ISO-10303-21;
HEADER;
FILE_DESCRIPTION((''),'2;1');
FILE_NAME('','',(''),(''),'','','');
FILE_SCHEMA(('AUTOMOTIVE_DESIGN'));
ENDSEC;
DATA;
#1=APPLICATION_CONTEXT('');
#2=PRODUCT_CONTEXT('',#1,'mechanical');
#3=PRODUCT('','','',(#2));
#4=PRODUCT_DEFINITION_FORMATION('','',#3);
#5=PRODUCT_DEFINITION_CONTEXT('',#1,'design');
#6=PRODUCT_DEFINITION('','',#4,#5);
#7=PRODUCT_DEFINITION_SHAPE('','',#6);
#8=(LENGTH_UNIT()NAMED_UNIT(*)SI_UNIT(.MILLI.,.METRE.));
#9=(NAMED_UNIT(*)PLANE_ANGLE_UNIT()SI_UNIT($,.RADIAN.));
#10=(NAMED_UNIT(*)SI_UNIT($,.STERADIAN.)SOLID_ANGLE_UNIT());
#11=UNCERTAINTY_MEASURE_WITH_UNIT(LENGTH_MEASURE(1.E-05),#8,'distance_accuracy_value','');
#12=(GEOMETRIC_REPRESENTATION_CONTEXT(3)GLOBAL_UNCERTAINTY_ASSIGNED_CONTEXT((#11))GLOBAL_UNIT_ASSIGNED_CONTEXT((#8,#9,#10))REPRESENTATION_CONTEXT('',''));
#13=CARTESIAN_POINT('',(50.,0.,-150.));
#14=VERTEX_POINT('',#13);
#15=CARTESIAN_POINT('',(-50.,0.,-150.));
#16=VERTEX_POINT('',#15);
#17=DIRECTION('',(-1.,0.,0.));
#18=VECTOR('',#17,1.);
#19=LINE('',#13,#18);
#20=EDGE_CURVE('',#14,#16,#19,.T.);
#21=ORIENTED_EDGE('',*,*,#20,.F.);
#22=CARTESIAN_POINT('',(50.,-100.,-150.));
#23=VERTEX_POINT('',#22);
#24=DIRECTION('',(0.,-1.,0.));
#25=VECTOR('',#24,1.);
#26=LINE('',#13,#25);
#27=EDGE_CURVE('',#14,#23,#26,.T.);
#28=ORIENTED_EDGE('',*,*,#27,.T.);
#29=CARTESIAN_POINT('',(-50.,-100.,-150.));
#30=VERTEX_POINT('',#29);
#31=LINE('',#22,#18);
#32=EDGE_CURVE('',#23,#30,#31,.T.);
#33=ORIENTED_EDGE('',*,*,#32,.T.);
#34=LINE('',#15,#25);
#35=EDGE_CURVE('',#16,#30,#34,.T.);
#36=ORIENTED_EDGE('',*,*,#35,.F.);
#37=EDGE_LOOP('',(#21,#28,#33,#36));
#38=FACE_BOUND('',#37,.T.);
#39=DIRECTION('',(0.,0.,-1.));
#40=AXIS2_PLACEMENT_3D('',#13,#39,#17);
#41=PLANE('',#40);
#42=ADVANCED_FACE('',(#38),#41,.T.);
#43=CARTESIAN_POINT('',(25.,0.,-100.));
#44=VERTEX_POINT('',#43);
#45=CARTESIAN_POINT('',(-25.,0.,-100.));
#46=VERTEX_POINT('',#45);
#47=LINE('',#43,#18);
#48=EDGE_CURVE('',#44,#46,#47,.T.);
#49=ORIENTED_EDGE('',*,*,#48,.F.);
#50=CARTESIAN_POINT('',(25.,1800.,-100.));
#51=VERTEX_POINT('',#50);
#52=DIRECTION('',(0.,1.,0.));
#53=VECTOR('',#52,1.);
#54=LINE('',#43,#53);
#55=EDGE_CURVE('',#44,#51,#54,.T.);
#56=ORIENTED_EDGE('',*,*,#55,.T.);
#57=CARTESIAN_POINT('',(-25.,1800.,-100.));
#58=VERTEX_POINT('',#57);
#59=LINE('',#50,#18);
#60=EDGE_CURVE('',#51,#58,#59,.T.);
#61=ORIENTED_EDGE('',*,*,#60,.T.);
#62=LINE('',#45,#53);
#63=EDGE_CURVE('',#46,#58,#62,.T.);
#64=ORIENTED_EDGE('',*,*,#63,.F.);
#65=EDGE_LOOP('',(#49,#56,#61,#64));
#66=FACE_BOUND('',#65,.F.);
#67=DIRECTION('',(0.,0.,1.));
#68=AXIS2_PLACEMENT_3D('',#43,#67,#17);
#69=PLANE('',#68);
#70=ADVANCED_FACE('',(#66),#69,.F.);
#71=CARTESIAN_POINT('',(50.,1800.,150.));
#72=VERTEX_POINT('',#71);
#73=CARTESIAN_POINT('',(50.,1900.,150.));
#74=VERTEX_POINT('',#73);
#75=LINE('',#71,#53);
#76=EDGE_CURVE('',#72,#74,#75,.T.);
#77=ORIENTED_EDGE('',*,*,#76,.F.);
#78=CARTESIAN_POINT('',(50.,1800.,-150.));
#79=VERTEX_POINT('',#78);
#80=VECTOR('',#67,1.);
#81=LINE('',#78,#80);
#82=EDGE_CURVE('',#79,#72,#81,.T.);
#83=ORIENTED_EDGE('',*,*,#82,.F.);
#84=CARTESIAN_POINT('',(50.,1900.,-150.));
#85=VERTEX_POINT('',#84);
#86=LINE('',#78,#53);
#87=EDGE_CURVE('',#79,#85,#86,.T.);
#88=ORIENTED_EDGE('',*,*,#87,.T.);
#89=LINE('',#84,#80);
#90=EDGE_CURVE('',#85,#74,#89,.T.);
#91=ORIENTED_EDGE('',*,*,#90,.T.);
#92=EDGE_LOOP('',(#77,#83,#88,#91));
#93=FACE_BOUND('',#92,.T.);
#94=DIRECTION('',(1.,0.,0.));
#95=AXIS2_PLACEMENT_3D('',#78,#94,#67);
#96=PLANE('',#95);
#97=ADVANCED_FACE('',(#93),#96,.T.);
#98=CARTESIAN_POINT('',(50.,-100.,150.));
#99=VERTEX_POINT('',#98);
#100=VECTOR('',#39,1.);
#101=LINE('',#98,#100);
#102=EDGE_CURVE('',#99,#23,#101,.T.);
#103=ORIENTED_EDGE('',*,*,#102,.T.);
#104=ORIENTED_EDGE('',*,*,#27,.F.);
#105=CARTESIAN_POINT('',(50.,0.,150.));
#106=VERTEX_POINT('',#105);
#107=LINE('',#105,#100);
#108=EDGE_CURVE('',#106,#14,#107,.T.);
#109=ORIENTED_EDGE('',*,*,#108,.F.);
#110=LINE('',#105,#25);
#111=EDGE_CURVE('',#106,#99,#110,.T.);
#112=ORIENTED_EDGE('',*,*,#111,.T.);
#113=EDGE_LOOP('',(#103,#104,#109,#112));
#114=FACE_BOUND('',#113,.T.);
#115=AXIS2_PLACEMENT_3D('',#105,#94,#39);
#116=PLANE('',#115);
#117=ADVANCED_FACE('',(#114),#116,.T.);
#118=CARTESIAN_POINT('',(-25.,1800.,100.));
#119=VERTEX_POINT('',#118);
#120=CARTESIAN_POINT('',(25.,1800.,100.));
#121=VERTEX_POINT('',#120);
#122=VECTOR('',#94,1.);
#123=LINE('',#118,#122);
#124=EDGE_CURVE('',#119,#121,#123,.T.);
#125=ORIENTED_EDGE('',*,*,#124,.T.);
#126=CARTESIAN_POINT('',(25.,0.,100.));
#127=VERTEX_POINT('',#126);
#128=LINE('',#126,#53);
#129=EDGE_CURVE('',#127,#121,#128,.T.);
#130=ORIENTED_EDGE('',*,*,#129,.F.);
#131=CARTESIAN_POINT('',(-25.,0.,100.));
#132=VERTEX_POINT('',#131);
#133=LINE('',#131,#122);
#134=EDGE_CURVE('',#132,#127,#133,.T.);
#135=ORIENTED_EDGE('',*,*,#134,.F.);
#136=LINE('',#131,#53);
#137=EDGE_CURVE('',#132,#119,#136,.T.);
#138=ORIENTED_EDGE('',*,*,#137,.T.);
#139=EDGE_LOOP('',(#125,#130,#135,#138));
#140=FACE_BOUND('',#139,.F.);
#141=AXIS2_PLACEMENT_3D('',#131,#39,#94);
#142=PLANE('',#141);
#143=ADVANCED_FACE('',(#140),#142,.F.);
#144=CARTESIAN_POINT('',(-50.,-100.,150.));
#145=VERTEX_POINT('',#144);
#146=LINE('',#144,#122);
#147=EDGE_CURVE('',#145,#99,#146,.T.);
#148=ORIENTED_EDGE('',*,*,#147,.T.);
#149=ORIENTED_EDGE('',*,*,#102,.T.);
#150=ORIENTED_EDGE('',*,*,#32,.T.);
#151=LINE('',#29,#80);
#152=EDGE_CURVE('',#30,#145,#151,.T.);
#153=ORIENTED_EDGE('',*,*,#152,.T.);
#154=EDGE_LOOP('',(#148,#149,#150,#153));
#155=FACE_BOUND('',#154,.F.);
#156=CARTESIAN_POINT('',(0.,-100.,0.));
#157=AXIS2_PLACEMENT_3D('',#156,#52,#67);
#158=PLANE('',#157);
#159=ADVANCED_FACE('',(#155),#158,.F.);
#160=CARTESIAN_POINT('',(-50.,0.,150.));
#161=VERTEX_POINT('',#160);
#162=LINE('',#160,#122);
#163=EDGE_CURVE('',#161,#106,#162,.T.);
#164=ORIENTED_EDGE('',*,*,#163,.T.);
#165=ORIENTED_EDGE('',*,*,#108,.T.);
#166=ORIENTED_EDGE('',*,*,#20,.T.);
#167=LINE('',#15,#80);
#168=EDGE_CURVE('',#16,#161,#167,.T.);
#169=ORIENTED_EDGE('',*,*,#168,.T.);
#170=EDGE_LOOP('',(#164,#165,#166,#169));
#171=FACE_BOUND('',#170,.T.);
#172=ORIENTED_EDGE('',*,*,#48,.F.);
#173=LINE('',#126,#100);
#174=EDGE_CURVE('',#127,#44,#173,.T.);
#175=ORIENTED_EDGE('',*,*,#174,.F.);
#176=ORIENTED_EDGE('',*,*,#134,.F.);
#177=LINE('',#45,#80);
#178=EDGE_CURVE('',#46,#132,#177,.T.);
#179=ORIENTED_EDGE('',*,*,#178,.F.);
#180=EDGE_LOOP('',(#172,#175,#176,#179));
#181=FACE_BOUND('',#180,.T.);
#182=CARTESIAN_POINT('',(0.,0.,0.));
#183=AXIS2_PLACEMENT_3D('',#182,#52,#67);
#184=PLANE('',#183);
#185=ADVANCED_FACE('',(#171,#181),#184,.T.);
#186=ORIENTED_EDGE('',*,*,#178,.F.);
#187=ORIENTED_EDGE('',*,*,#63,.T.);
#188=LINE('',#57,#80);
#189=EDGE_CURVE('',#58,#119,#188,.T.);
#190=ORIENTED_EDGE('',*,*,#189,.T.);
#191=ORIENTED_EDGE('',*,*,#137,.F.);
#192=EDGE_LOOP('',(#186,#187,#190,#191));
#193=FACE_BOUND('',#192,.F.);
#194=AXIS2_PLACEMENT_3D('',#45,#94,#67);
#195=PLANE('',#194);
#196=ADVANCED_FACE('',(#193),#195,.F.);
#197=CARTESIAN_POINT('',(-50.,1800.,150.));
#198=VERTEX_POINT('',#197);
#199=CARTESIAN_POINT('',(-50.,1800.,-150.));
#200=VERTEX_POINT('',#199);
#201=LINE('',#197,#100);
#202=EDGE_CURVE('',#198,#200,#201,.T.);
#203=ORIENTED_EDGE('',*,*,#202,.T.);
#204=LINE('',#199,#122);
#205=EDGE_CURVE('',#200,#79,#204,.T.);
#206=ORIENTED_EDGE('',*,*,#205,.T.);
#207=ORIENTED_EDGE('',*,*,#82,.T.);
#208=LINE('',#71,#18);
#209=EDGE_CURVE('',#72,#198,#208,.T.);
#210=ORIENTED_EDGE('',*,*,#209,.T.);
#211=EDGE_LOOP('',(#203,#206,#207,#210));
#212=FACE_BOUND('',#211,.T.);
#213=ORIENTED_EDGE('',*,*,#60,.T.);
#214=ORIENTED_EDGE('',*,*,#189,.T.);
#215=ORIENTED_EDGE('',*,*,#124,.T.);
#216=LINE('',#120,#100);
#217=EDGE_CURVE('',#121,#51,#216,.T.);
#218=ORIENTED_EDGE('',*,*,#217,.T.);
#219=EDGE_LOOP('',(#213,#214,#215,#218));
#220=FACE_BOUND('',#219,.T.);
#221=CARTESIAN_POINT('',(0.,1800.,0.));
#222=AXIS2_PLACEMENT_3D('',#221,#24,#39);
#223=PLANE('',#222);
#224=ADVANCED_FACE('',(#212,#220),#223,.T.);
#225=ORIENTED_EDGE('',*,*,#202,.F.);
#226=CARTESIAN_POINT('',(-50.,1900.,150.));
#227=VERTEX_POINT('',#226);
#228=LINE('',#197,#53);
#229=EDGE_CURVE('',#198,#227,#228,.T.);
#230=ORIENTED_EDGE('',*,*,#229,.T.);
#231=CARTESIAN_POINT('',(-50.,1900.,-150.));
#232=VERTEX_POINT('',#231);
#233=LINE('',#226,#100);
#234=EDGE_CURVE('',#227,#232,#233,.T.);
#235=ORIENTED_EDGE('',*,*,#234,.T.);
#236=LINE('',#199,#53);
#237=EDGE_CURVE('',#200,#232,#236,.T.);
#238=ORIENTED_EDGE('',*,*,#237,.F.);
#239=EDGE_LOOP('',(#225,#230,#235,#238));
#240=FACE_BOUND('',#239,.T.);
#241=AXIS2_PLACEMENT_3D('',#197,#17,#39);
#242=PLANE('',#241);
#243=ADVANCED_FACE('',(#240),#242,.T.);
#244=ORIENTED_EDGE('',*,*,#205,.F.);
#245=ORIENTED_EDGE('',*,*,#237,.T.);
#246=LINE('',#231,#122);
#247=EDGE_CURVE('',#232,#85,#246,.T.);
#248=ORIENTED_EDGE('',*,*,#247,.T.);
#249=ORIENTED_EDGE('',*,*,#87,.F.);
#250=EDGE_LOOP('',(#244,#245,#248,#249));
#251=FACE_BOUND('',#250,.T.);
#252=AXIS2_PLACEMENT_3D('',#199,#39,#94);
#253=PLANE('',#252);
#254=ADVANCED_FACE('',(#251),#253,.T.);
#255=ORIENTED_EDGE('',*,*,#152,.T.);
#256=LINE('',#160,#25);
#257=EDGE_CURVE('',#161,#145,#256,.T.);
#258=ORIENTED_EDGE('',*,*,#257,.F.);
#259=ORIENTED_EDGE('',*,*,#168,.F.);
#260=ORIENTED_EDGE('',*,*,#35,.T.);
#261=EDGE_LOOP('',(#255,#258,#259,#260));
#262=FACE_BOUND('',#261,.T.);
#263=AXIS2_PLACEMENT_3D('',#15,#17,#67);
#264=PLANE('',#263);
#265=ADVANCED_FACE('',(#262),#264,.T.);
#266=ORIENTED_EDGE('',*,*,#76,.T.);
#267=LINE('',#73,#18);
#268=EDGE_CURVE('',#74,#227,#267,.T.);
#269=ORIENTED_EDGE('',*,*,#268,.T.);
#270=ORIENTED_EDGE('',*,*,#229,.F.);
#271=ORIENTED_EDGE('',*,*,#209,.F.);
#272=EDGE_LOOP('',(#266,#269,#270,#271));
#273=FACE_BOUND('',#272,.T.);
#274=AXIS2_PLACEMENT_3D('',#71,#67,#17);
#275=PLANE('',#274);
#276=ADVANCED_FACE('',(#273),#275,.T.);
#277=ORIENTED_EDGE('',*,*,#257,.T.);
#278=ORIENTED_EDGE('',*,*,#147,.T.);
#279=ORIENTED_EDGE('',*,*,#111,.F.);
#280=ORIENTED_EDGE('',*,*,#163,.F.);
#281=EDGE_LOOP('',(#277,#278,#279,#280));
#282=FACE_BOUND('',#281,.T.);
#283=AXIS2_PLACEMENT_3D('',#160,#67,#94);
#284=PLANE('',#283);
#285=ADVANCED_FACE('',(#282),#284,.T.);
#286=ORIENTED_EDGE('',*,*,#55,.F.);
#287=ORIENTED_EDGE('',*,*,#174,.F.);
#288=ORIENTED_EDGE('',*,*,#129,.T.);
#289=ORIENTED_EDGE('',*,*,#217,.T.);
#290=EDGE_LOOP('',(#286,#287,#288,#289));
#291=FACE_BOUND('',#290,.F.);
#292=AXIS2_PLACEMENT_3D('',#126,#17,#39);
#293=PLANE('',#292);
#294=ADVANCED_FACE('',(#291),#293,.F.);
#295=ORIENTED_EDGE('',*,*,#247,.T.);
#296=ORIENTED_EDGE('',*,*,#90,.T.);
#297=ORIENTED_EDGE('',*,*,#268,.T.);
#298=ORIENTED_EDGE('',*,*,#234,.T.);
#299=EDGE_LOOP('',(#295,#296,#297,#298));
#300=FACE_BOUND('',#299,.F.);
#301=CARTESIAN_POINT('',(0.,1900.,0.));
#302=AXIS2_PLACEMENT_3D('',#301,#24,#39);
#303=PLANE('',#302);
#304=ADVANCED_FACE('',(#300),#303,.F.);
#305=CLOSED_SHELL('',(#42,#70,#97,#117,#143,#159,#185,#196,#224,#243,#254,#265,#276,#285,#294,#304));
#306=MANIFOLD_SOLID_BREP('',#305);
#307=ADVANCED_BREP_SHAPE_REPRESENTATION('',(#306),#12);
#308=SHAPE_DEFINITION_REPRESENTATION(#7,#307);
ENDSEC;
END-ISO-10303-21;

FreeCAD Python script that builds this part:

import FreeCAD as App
import Part
import Sketcher
Q = App.Units.Quantity

doc = App.newDocument("Part")
body = doc.addObject("PartDesign::Body", "Body")

sketch1 = body.newObject("Sketcher::SketchObject", "Sketch")
sketch1.AttachmentSupport = (doc.getObject("XZ_Plane"), [""])
sketch1.MapMode = "FlatFace"
sketch1.addGeometry([
    Part.LineSegment(App.Vector(50, -150, 0), App.Vector(-50, -150, 0)),
    Part.LineSegment(App.Vector(-50, -150, 0), App.Vector(-50, 150, 0)),
    Part.LineSegment(App.Vector(-50, 150, 0), App.Vector(50, 150, 0)),
    Part.LineSegment(App.Vector(50, 150, 0), App.Vector(50, -150, 0)),
], False)
sketch1.addConstraint([
    Sketcher.Constraint("Coincident", 0, 2, 1, 1),
    Sketcher.Constraint("Coincident", 1, 2, 2, 1),
    Sketcher.Constraint("Coincident", 2, 2, 3, 1),
    Sketcher.Constraint("Coincident", 3, 2, 0, 1),
    Sketcher.Constraint("Horizontal", 0),
    Sketcher.Constraint("Vertical", 1),
    Sketcher.Constraint("Horizontal", 2),
    Sketcher.Constraint("Vertical", 3),
    Sketcher.Constraint("Symmetric", 0, 2, 2, 2, -1, 1),
    Sketcher.Constraint("DistanceX", 0, 2, 0, 1, Q("100 mm")),
    Sketcher.Constraint("DistanceY", 1, 1, 1, 2, Q("300 mm")),
])
pad1 = body.newObject("PartDesign::Pad", "Pad")
pad1.Profile = sketch1
pad1.Length = 100

sketch2 = body.newObject("Sketcher::SketchObject", "Sketch001")
sketch2.AttachmentSupport = (doc.getObject("XZ_Plane"), [""])
sketch2.MapMode = "FlatFace"
sketch2.addGeometry([
    Part.LineSegment(App.Vector(25, -100, 0), App.Vector(-25, -100, 0)),
    Part.LineSegment(App.Vector(-25, -100, 0), App.Vector(-25, 100, 0)),
    Part.LineSegment(App.Vector(-25, 100, 0), App.Vector(25, 100, 0)),
    Part.LineSegment(App.Vector(25, 100, 0), App.Vector(25, -100, 0)),
], False)
sketch2.addConstraint([
    Sketcher.Constraint("Coincident", 0, 2, 1, 1),
    Sketcher.Constraint("Coincident", 1, 2, 2, 1),
    Sketcher.Constraint("Coincident", 2, 2, 3, 1),
    Sketcher.Constraint("Coincident", 3, 2, 0, 1),
    Sketcher.Constraint("Horizontal", 0),
    Sketcher.Constraint("Vertical", 1),
    Sketcher.Constraint("Horizontal", 2),
    Sketcher.Constraint("Vertical", 3),
    Sketcher.Constraint("Symmetric", 0, 2, 2, 2, -1, 1),
    Sketcher.Constraint("DistanceX", 0, 2, 0, 1, Q("50 mm")),
    Sketcher.Constraint("DistanceY", 1, 1, 1, 2, Q("200 mm")),
])
pad2 = body.newObject("PartDesign::Pad", "Pad001")
pad2.Profile = sketch2
pad2.Length = 1800
pad2.Reversed = True

sketch3 = body.newObject("Sketcher::SketchObject", "Sketch002")
sketch3.AttachmentSupport = (doc.getObject("XZ_Plane"), [""])
sketch3.MapMode = "FlatFace"
sketch3.AttachmentOffset = App.Placement(App.Vector(0, 0, -1800), App.Rotation())
sketch3.addGeometry([
    Part.LineSegment(App.Vector(50, 150, 0), App.Vector(50, -150, 0)),
    Part.LineSegment(App.Vector(50, -150, 0), App.Vector(-50, -150, 0)),
    Part.LineSegment(App.Vector(-50, -150, 0), App.Vector(-50, 150, 0)),
    Part.LineSegment(App.Vector(-50, 150, 0), App.Vector(50, 150, 0)),
], False)
sketch3.addConstraint([
    Sketcher.Constraint("Coincident", 0, 2, 1, 1),
    Sketcher.Constraint("Coincident", 1, 2, 2, 1),
    Sketcher.Constraint("Coincident", 2, 2, 3, 1),
    Sketcher.Constraint("Coincident", 3, 2, 0, 1),
    Sketcher.Constraint("Vertical", 0),
    Sketcher.Constraint("Horizontal", 1),
    Sketcher.Constraint("Vertical", 2),
    Sketcher.Constraint("Horizontal", 3),
    Sketcher.Constraint("Symmetric", 0, 2, 2, 2, -1, 1),
    Sketcher.Constraint("DistanceX", 1, 2, 1, 1, Q("100 mm")),
    Sketcher.Constraint("DistanceY", 0, 2, 0, 1, Q("300 mm")),
])
pad3 = body.newObject("PartDesign::Pad", "Pad002")
pad3.Profile = sketch3
pad3.Length = 100
pad3.Reversed = True

doc.recompute()
